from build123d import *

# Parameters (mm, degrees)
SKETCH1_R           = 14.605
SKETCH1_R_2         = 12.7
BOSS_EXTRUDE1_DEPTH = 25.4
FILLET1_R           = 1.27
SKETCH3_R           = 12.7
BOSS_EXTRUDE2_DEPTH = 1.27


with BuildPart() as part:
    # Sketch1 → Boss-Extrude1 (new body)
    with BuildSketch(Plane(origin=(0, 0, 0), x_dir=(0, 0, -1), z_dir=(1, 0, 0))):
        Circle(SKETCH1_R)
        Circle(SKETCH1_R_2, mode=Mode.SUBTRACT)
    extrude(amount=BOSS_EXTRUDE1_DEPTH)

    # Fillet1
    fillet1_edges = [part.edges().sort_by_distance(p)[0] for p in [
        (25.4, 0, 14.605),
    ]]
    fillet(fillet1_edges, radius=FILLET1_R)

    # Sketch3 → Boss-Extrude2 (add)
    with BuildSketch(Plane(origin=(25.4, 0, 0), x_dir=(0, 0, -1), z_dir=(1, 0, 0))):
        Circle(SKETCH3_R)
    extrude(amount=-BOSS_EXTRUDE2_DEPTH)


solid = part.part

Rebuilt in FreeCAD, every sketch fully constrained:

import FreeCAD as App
import Part
import Sketcher
from FreeCAD import Vector
Q = App.Units.Quantity


def edges_at(feature, points):
    """Names of the edges that pass closest to the given points."""
    edges = feature.Shape.Edges
    near = lambda p: min(range(len(edges)), key=lambda i: edges[i].distToShape(Part.Vertex(*p))[0])
    return sorted({f"Edge{near(p) + 1}" for p in points})

doc = App.newDocument("Part")
body = doc.addObject("PartDesign::Body", "Body")

# Sketch on YZ plane
sketch1 = body.newObject("Sketcher::SketchObject", "Sketch")
sketch1.AttachmentSupport = (doc.getObject("YZ_Plane"), [""])
sketch1.MapMode = "FlatFace"
sketch1.addGeometry([
    Part.Circle(Vector(0, 0, 0), Vector(0, 0, 1), 14.605),
    Part.Circle(Vector(0, 0, 0), Vector(0, 0, 1), 12.7),
], False)
sketch1.addConstraint([
    Sketcher.Constraint("Coincident", 0, 3, -1, 1),
    Sketcher.Constraint("Coincident", 1, 3, -1, 1),
    Sketcher.Constraint("Diameter", 1, Q("1 in")),
    Sketcher.Constraint("Diameter", 0, Q("1.15 in")),
])
pad1 = body.newObject("PartDesign::Pad", "Pad")
pad1.Profile = sketch1
pad1.Length = Q("1 in")
doc.recompute()

fillet = body.newObject("PartDesign::Fillet", "Fillet")
fillet.Base = (pad1, edges_at(pad1, [(25.4, 0, 14.605)]))
fillet.Radius = Q("0.05 in")

# Sketch on YZ plane
sketch2 = body.newObject("Sketcher::SketchObject", "Sketch001")
sketch2.AttachmentSupport = (doc.getObject("YZ_Plane"), [""])
sketch2.MapMode = "FlatFace"
sketch2.AttachmentOffset = App.Placement(Vector(0, 0, 1 * 25.4), App.Rotation())
sketch2.addGeometry(Part.Circle(Vector(0, 0, 0), Vector(0, 0, 1), 12.7), False)
sketch2.addConstraint([
    Sketcher.Constraint("Coincident", 0, 3, -1, 1),
    Sketcher.Constraint("Diameter", 0, Q("1 in")),
])
pad2 = body.newObject("PartDesign::Pad", "Pad001")
pad2.Profile = sketch2
pad2.Length = Q("0.05 in")
pad2.Reversed = True

doc.recompute()
